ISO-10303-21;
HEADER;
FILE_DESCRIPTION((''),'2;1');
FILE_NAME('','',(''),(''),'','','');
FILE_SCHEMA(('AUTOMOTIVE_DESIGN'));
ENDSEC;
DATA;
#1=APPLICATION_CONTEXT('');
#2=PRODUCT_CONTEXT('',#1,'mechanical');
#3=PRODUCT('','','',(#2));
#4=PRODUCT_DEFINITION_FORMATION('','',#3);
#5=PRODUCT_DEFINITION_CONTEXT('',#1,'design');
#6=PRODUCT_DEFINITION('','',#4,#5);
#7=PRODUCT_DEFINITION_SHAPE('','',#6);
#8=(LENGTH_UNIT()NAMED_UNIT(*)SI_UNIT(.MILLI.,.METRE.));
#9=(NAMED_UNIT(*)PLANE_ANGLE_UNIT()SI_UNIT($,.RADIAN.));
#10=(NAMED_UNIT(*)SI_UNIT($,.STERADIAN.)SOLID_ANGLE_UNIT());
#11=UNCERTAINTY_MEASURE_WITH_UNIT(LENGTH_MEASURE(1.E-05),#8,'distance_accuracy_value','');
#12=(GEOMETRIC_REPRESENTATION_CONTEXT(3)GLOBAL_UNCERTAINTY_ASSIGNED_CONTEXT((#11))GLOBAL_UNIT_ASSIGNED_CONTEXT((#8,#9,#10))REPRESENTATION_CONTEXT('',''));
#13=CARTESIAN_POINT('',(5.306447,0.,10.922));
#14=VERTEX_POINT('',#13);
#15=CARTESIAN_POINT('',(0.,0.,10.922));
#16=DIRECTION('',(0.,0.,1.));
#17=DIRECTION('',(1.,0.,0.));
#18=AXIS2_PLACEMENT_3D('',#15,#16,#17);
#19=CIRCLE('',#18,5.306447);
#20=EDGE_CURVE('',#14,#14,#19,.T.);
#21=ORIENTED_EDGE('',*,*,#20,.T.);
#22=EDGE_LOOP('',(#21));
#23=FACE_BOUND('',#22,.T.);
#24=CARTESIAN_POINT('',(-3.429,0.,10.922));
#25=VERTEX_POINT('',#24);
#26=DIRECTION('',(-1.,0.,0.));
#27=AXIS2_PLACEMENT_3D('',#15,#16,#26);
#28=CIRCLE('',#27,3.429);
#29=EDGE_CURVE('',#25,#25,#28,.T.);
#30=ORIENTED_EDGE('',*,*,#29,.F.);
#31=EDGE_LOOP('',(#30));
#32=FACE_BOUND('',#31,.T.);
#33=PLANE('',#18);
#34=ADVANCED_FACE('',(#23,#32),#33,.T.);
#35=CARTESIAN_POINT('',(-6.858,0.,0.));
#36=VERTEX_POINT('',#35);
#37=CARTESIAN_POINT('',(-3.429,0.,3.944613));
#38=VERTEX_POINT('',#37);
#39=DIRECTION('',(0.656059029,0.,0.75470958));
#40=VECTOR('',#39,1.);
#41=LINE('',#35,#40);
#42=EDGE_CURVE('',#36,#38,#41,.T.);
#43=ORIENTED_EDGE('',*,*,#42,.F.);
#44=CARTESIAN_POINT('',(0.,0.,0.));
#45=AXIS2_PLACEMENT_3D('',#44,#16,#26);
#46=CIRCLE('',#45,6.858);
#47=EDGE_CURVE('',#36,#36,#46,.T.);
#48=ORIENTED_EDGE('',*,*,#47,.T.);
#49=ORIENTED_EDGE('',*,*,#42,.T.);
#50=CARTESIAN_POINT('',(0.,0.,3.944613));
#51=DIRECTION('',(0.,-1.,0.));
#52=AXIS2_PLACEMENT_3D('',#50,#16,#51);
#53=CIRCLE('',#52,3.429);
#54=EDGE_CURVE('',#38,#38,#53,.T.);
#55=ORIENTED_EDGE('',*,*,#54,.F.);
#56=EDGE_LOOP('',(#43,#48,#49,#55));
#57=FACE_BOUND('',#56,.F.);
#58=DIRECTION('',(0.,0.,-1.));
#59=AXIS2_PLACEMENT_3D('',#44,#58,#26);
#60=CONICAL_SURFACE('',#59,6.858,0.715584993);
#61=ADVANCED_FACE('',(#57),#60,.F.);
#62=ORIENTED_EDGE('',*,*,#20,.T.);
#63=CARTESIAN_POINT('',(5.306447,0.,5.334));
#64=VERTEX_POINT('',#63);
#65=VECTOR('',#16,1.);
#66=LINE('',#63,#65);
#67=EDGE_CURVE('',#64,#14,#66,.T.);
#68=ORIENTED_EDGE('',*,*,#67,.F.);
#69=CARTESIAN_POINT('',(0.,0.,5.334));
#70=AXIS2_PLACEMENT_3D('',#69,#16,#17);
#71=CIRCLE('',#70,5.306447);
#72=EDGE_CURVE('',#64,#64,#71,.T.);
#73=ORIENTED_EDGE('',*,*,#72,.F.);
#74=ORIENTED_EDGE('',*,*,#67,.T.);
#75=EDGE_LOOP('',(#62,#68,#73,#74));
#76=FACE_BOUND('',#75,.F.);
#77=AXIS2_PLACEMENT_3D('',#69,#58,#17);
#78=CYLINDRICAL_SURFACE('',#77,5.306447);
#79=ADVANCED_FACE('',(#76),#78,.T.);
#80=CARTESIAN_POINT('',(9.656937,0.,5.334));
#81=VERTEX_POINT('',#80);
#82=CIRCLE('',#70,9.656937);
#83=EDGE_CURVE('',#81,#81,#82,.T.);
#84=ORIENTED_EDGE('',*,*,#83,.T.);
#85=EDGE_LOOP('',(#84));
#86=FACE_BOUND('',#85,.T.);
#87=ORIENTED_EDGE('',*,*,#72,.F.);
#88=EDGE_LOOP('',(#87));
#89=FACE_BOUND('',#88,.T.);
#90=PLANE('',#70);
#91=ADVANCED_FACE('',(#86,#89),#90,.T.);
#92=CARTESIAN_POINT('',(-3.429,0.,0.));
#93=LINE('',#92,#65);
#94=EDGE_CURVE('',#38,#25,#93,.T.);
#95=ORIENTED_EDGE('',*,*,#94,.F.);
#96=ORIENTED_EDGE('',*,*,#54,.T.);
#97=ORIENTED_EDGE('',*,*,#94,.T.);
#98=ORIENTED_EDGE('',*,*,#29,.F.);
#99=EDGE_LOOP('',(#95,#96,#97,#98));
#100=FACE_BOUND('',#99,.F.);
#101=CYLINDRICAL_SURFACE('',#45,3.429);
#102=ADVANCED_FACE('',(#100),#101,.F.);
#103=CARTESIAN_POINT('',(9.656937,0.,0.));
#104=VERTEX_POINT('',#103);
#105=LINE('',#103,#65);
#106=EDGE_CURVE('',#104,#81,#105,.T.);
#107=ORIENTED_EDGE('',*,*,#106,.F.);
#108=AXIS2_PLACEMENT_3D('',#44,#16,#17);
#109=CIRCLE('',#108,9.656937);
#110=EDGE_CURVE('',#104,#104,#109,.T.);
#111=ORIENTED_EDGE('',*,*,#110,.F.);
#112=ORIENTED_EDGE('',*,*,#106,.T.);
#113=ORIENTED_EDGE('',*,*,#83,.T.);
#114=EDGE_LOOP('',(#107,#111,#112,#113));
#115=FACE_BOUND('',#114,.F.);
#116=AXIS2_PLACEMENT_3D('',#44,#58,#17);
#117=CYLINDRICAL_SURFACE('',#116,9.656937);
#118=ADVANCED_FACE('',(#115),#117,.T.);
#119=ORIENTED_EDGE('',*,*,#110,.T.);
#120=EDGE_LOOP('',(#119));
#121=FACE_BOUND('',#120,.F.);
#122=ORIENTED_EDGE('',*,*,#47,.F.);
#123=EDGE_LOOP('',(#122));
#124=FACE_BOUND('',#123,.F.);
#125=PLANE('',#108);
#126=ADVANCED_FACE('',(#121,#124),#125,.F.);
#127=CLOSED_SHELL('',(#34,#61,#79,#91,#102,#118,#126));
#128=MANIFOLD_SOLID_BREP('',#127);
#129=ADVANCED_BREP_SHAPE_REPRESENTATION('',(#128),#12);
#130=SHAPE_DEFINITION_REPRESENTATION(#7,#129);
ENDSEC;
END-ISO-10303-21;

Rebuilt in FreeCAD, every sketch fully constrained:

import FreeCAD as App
import Part
import Sketcher
from FreeCAD import Vector
Q = App.Units.Quantity

doc = App.newDocument("Part")
body = doc.addObject("PartDesign::Body", "Body")

sketch1 = body.newObject("Sketcher::SketchObject", "Sketch")
sketch1.AttachmentSupport = (doc.getObject("XY_Plane"), [""])
sketch1.MapMode = "FlatFace"
sketch1.addGeometry(Part.Circle(Vector(0, 0, 0), Vector(0, 0, 1), 10), False)
sketch1.addConstraint(Sketcher.Constraint("Coincident", 0, 3, -1, 1))
sketch1.addConstraint(Sketcher.Constraint("Diameter", 0, Q("19.313874 mm")))
pad1 = body.newObject("PartDesign::Pad", "Pad")
pad1.Profile = sketch1
pad1.Length = Q("0.21 in")

sketch2 = body.newObject("Sketcher::SketchObject", "Sketch001")
sketch2.AttachmentSupport = (doc.getObject("XY_Plane"), [""])
sketch2.MapMode = "FlatFace"
sketch2.AttachmentOffset = App.Placement(Vector(0, 0, 0.21 * 25.4), App.Rotation())
sketch2.addGeometry(Part.Circle(Vector(0, 0, 0), Vector(0, 0, 1), 5), False)
sketch2.addConstraint(Sketcher.Constraint("Coincident", 0, 3, -1, 1))
sketch2.addConstraint(Sketcher.Constraint("Diameter", 0, Q("10.612894 mm")))
pad2 = body.newObject("PartDesign::Pad", "Pad001")
pad2.Profile = sketch2
pad2.Length = Q("0.22 in")

sketch3 = body.newObject("Sketcher::SketchObject", "Sketch002")
sketch3.AttachmentSupport = (doc.getObject("XY_Plane"), [""])
sketch3.MapMode = "FlatFace"
sketch3.addGeometry(Part.Circle(Vector(0, 0, 0), Vector(0, 0, 1), 3.4), False)
sketch3.addConstraint(Sketcher.Constraint("Coincident", 0, 3, -1, 1))
sketch3.addConstraint(Sketcher.Constraint("Diameter", 0, Q("0.27 in")))
doc.recompute()
hole = body.newObject("PartDesign::Hole", "Hole")
hole.Profile = sketch3
hole.ThreadType = "None"
hole.Diameter = Q("0.27 in")
hole.DepthType = "ThroughAll"
hole.HoleCutType = "Countersink"
hole.HoleCutDiameter = Q("0.54 in")
hole.HoleCutCountersinkAngle = 82
hole.Reversed = True

doc.recompute()
